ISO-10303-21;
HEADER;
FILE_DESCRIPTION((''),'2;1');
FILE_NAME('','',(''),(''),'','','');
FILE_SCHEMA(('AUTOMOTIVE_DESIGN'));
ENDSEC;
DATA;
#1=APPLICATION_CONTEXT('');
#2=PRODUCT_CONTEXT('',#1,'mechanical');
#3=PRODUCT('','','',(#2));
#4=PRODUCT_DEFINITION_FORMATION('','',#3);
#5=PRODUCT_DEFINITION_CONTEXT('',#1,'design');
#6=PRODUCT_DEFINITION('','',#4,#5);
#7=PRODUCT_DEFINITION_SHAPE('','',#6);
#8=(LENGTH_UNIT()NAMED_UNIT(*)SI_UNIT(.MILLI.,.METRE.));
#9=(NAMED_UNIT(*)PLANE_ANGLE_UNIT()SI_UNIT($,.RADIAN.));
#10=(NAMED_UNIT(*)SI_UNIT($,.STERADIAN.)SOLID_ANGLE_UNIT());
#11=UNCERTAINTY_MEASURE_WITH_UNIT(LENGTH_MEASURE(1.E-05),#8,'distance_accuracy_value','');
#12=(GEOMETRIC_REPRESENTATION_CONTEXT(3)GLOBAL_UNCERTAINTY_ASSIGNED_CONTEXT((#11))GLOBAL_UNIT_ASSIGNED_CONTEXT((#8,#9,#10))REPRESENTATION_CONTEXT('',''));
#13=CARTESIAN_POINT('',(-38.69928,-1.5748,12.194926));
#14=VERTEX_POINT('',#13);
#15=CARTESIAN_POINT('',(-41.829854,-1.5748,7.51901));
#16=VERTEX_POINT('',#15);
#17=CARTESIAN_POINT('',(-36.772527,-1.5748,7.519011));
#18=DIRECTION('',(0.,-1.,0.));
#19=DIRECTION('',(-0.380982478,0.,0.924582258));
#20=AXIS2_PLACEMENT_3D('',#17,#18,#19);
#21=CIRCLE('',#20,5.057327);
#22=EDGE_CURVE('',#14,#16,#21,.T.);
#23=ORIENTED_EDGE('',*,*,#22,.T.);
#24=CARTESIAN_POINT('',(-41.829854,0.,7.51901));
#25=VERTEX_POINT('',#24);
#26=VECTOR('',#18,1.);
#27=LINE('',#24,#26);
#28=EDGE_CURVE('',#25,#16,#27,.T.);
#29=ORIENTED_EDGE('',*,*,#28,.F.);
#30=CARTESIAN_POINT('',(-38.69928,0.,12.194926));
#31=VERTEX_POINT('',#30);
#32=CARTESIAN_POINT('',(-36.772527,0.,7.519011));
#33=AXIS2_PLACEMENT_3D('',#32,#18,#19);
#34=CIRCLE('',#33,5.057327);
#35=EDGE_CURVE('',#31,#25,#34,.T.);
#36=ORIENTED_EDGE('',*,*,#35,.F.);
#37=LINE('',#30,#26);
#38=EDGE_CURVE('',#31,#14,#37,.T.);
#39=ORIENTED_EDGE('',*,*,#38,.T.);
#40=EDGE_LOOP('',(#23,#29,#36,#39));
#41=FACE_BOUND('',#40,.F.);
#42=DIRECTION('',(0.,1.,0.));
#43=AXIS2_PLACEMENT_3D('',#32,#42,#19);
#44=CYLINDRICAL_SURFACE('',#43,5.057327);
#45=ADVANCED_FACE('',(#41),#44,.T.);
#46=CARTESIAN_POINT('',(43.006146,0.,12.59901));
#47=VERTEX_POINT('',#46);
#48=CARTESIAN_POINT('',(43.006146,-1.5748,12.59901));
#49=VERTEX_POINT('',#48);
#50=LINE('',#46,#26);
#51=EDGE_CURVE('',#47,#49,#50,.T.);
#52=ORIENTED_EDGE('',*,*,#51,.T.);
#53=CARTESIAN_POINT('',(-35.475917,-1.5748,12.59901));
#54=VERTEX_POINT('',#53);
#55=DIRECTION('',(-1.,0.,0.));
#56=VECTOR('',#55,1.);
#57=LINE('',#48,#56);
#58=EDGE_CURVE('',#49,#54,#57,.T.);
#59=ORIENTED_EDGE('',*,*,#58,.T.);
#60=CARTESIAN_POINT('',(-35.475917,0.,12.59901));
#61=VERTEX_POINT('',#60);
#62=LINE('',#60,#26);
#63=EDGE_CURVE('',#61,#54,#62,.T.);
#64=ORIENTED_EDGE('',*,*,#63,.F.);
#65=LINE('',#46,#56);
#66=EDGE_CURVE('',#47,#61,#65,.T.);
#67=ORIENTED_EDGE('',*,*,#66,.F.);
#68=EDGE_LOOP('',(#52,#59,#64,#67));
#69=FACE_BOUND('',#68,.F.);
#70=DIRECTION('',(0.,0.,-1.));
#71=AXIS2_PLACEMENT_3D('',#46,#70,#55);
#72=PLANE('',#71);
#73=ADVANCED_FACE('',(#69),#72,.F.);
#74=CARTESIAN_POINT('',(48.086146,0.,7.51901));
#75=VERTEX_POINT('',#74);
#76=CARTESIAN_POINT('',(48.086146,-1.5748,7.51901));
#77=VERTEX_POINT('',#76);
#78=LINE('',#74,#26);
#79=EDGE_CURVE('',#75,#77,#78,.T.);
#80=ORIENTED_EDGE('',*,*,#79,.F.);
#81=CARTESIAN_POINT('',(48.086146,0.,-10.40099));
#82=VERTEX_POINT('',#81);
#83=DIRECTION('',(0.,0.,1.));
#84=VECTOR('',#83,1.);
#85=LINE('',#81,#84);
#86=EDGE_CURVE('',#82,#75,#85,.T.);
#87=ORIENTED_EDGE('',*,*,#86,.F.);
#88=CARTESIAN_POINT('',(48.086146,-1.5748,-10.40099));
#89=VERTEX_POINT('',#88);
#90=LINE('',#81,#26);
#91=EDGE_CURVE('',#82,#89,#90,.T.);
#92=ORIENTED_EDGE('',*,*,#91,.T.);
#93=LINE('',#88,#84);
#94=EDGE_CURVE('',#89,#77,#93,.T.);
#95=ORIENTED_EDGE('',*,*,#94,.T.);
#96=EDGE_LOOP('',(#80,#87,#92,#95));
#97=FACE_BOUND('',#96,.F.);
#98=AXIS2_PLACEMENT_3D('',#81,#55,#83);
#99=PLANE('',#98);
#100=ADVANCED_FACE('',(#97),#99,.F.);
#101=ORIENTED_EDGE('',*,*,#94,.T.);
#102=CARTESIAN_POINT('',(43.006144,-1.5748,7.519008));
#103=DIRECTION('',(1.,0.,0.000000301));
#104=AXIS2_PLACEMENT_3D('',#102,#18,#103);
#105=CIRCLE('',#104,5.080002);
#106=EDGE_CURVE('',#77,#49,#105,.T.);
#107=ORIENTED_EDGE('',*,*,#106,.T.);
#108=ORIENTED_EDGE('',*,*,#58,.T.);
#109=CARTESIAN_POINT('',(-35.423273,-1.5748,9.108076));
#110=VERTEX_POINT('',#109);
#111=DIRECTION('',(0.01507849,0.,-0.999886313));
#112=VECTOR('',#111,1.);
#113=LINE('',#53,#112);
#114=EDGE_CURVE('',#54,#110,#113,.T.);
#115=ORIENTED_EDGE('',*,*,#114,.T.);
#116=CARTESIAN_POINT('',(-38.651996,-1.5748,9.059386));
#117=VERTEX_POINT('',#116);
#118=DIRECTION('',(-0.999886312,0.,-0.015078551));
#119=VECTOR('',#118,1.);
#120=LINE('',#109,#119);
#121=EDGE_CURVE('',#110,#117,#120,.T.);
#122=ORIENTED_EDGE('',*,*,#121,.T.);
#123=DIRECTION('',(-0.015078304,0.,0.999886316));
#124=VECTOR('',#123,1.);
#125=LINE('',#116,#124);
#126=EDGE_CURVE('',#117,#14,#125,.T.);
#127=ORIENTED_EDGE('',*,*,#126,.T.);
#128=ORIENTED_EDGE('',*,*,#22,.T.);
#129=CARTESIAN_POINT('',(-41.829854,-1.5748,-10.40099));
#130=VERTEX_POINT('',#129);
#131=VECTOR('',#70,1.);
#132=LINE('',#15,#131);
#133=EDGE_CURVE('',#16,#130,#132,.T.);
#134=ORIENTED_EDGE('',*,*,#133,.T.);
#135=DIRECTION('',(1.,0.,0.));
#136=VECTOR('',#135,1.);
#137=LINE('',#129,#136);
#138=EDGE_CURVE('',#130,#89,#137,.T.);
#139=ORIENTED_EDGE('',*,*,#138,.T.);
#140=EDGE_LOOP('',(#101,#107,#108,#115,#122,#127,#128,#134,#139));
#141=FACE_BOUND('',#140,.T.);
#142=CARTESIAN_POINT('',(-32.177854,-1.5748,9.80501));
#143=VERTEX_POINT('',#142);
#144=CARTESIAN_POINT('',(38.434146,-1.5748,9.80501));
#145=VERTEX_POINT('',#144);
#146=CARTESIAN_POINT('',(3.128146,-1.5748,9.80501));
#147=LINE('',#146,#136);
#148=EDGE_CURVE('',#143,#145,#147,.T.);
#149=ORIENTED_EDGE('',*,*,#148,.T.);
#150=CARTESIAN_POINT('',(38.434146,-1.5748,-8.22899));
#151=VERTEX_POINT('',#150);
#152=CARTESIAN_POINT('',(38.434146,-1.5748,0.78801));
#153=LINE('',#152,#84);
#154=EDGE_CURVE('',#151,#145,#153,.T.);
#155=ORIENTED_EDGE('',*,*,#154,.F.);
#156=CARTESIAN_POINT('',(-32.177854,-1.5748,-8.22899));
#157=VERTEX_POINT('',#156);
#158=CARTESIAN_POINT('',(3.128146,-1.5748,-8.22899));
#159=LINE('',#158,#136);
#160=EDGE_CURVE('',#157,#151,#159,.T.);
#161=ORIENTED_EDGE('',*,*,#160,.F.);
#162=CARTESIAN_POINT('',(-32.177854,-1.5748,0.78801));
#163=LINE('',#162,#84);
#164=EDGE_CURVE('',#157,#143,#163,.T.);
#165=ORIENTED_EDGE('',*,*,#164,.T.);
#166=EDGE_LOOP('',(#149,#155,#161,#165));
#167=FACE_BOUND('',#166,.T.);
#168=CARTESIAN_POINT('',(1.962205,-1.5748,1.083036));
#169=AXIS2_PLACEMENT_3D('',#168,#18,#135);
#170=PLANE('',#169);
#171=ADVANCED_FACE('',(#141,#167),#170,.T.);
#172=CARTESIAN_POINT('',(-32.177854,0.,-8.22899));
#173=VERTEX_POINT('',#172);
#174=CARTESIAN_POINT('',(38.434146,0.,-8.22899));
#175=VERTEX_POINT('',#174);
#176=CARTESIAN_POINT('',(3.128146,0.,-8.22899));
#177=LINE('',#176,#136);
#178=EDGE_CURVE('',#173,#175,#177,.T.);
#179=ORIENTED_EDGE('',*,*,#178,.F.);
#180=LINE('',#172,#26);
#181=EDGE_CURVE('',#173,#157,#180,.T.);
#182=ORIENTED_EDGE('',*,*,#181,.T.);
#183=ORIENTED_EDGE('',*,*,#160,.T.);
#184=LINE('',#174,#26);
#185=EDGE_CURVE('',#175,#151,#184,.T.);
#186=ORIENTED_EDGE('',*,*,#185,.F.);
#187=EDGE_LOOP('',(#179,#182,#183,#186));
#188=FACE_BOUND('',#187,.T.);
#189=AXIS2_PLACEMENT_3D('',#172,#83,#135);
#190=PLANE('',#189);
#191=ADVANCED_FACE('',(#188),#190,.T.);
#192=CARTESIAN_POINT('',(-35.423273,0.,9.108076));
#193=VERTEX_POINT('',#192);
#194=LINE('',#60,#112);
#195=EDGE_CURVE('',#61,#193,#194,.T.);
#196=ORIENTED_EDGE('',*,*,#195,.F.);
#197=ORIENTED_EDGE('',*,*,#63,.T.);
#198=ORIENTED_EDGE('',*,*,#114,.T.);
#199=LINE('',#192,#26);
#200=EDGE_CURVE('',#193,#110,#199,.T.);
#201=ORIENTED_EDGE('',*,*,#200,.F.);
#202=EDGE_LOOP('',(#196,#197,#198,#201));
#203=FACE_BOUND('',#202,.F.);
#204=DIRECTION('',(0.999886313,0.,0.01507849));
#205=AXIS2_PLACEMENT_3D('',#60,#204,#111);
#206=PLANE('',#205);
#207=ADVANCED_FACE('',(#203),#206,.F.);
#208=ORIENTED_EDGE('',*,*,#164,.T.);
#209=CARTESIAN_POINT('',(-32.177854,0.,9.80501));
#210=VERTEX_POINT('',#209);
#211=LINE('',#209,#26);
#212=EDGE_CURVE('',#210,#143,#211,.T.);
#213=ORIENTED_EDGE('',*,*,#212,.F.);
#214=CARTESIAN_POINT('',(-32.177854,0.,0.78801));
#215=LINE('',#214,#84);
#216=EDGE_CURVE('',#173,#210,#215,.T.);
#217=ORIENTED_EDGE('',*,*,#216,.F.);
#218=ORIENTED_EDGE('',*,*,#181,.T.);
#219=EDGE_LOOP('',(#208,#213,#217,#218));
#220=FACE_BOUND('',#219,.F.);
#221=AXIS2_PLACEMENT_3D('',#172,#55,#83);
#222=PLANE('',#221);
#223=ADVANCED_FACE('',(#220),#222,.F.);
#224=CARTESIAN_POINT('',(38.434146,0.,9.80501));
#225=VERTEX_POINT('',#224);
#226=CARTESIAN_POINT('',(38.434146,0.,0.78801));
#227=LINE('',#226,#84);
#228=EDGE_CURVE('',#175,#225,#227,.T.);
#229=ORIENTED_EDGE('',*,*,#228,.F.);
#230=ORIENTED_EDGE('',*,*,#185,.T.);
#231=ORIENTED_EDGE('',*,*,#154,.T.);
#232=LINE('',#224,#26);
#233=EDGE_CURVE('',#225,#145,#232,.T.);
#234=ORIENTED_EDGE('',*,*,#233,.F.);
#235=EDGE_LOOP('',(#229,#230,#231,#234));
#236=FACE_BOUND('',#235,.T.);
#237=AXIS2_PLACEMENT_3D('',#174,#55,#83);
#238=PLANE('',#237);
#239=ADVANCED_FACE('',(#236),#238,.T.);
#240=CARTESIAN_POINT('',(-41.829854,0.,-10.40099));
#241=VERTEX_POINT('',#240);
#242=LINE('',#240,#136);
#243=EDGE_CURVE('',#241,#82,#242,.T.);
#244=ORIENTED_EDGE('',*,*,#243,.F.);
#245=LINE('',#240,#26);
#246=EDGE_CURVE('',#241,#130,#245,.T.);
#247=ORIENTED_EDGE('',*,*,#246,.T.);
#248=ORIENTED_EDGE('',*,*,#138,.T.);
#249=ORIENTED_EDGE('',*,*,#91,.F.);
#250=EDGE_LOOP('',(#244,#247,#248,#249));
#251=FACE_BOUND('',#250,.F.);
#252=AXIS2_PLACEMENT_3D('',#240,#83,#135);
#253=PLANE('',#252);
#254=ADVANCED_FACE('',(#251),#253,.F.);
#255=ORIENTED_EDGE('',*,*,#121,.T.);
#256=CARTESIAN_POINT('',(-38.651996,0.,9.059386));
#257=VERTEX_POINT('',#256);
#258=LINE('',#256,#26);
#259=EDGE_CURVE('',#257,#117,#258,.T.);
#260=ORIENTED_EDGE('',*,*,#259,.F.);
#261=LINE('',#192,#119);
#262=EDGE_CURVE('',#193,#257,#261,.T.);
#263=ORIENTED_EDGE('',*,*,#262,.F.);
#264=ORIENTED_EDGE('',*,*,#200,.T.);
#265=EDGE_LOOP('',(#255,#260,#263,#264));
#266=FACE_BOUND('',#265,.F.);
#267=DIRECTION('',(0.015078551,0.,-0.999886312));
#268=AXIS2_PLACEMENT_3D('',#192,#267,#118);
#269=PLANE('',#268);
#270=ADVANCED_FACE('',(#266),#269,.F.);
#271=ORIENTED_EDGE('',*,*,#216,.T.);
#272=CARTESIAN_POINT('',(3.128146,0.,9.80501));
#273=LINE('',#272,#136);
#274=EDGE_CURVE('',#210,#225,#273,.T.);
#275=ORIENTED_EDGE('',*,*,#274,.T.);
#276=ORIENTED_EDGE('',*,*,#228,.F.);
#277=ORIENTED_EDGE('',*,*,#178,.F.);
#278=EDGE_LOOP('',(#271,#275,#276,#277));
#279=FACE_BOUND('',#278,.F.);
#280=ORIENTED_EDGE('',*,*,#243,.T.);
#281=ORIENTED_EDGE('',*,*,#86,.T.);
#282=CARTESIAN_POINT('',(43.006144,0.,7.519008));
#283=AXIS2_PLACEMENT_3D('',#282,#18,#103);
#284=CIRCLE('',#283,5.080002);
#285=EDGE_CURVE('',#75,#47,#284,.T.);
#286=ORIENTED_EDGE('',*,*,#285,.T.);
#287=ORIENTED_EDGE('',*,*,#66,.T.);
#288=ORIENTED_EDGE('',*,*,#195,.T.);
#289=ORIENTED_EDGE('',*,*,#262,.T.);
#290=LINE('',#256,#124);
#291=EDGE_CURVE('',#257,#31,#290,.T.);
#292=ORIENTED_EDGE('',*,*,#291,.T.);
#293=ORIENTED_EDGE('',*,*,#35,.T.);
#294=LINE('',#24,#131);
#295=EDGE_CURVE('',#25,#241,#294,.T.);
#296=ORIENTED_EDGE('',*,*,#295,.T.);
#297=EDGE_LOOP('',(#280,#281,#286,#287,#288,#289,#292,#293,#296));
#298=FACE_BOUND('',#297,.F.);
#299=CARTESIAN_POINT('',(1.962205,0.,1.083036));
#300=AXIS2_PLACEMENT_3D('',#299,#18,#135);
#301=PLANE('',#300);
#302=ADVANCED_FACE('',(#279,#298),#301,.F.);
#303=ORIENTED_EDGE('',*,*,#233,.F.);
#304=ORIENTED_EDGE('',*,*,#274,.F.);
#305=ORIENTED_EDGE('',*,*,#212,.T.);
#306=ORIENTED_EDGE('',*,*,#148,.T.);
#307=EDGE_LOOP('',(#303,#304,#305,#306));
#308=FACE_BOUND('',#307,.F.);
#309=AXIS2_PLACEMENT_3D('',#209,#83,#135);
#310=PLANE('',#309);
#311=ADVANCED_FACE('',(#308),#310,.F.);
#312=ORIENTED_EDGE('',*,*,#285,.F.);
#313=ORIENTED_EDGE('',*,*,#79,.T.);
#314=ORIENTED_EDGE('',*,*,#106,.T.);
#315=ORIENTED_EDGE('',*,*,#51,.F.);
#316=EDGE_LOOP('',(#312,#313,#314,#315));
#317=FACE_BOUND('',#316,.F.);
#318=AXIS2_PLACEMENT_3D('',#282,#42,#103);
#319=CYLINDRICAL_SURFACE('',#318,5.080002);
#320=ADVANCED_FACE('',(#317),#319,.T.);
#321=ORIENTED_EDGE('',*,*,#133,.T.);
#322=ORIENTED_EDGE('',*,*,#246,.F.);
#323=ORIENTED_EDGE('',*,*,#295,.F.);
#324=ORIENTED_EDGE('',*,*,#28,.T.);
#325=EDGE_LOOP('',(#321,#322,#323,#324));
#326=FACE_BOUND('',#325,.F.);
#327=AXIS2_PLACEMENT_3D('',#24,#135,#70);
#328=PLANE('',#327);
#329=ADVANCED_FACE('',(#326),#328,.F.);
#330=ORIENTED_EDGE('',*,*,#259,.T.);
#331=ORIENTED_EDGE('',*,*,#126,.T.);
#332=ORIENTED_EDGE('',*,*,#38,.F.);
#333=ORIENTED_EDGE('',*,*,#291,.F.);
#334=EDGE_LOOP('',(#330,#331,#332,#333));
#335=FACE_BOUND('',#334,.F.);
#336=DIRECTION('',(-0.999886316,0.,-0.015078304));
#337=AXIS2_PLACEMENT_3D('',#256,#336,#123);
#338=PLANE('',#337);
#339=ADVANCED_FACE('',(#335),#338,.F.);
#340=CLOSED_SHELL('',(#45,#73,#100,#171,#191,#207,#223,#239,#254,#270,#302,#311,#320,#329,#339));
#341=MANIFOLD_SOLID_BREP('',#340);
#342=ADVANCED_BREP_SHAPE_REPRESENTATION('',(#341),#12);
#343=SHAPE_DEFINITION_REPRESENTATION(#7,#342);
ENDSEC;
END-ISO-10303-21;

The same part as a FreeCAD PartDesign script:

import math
import FreeCAD as App
import Part
import Sketcher

V = App.Vector
Q = App.Units.Quantity

doc = App.newDocument("Part")
body = doc.addObject("PartDesign::Body", "Body")

# Sketch on XZ plane
sketch1 = doc.addObject("Sketcher::SketchObject", "Sketch")
body.addObject(sketch1)
sketch1.AttachmentSupport = (doc.XZ_Plane, [""])
sketch1.MapMode = "FlatFace"
sketch1.addGeometry(Part.LineSegment(V(43, 12.6, 0), V(-35.5, 12.6, 0)), False)
sketch1.addGeometry(Part.LineSegment(V(-35.5, 12.6, 0), V(-35.4, 9.1, 0)), False)
sketch1.addGeometry(Part.LineSegment(V(-35.4, 9.1, 0), V(-38.7, 9.1, 0)), False)
sketch1.addGeometry(Part.LineSegment(V(-38.7, 9.1, 0), V(-38.7, 12.2, 0)), False)
sketch1.addGeometry(Part.ArcOfCircle(Part.Circle(V(-36.8, 7.5, 0), V(0, 0, 1), 5.1), math.radians(112), math.radians(180)), False)
sketch1.addGeometry(Part.LineSegment(V(-41.8, 7.5, 0), V(-41.8, -10.4, 0)), False)
sketch1.addGeometry(Part.LineSegment(V(-41.8, -10.4, 0), V(48.1, -10.4, 0)), False)
sketch1.addGeometry(Part.LineSegment(V(48.1, -10.4, 0), V(48.1, 7.5, 0)), False)
sketch1.addGeometry(Part.ArcOfCircle(Part.Circle(V(43, 7.5, 0), V(0, 0, 1), 5.1), math.radians(0), math.radians(90)), False)
sketch1.addGeometry(Part.LineSegment(V(38.4, -8.2, 0), V(-32.2, -8.2, 0)), False)
sketch1.addGeometry(Part.LineSegment(V(-32.2, -8.2, 0), V(-32.2, 9.8, 0)), False)
sketch1.addGeometry(Part.LineSegment(V(-32.2, 9.8, 0), V(38.4, 9.8, 0)), False)
sketch1.addGeometry(Part.LineSegment(V(38.4, 9.8, 0), V(38.4, -8.2, 0)), False)
sketch1.addConstraint(Sketcher.Constraint("Coincident", 0, 2, 1, 1))
sketch1.addConstraint(Sketcher.Constraint("Coincident", 1, 2, 2, 1))
sketch1.addConstraint(Sketcher.Constraint("Coincident", 2, 2, 3, 1))
sketch1.addConstraint(Sketcher.Constraint("Coincident", 3, 2, 4, 1))
sketch1.addConstraint(Sketcher.Constraint("Tangent", 4, 2, 5, 1))
sketch1.addConstraint(Sketcher.Constraint("Coincident", 5, 2, 6, 1))
sketch1.addConstraint(Sketcher.Constraint("Coincident", 6, 2, 7, 1))
sketch1.addConstraint(Sketcher.Constraint("Tangent", 7, 2, 8, 1))
sketch1.addConstraint(Sketcher.Constraint("Tangent", 8, 2, 0, 1))
sketch1.addConstraint(Sketcher.Constraint("Coincident", 9, 2, 10, 1))
sketch1.addConstraint(Sketcher.Constraint("Coincident", 10, 2, 11, 1))
sketch1.addConstraint(Sketcher.Constraint("Coincident", 11, 2, 12, 1))
sketch1.addConstraint(Sketcher.Constraint("Coincident", 12, 2, 9, 1))
sketch1.addConstraint(Sketcher.Constraint("Horizontal", 0))
sketch1.addConstraint(Sketcher.Constraint("Vertical", 5))
sketch1.addConstraint(Sketcher.Constraint("Horizontal", 6))
sketch1.addConstraint(Sketcher.Constraint("Vertical", 7))
sketch1.addConstraint(Sketcher.Constraint("Horizontal", 9))
sketch1.addConstraint(Sketcher.Constraint("Vertical", 10))
sketch1.addConstraint(Sketcher.Constraint("Horizontal", 11))
sketch1.addConstraint(Sketcher.Constraint("Vertical", 12))
sketch1.addConstraint(Sketcher.Constraint("Perpendicular", 1, 2))
sketch1.addConstraint(Sketcher.Constraint("Perpendicular", 2, 3))
sketch1.addConstraint(Sketcher.Constraint("Horizontal", 8, 3, 4, 2))
sketch1.addConstraint(Sketcher.Constraint("Radius", 8, Q("0.2000001 in")))
sketch1.addConstraint(Sketcher.Constraint("DistanceX", 6, 1, 6, 2, Q("3.54 in")))
sketch1.addConstraint(Sketcher.Constraint("DistanceX", 9, 2, 9, 1, Q("2.78 in")))
sketch1.addConstraint(Sketcher.Constraint("DistanceY", 10, 1, 10, 2, Q("0.71 in")))
sketch1.addConstraint(Sketcher.Constraint("DistanceX", 5, 2, 9, 2, Q("0.38 in")))
sketch1.addConstraint(Sketcher.Constraint("DistanceY", 9, 2, 4, 3, Q("0.62 in")))
sketch1.addConstraint(Sketcher.Constraint("DistanceY", 5, 2, 5, 1, 17.92))
sketch1.addConstraint(Sketcher.Constraint("Radius", 4, 5.057327))
sketch1.addConstraint(Sketcher.Constraint("Distance", 1, 3.491331))
sketch1.addConstraint(Sketcher.Constraint("Distance", 2, 3.22909))
sketch1.addConstraint(Sketcher.Constraint("DistanceX", 0, 2, 0, 1, 78.482063))
sketch1.addConstraint(Sketcher.Constraint("DistanceY", -1, 1, 4, 3, 7.519011))
sketch1.addConstraint(Sketcher.Constraint("DistanceX", 3, 2, -1, 1, 38.69928))
sketch1.addConstraint(Sketcher.Constraint("DistanceX", 2, 2, 4, 3, 1.879469))
pad1 = doc.addObject("PartDesign::Pad", "Pad")
body.addObject(pad1)
pad1.Profile = sketch1
pad1.Length = Q("0.062 in")

doc.recompute()
